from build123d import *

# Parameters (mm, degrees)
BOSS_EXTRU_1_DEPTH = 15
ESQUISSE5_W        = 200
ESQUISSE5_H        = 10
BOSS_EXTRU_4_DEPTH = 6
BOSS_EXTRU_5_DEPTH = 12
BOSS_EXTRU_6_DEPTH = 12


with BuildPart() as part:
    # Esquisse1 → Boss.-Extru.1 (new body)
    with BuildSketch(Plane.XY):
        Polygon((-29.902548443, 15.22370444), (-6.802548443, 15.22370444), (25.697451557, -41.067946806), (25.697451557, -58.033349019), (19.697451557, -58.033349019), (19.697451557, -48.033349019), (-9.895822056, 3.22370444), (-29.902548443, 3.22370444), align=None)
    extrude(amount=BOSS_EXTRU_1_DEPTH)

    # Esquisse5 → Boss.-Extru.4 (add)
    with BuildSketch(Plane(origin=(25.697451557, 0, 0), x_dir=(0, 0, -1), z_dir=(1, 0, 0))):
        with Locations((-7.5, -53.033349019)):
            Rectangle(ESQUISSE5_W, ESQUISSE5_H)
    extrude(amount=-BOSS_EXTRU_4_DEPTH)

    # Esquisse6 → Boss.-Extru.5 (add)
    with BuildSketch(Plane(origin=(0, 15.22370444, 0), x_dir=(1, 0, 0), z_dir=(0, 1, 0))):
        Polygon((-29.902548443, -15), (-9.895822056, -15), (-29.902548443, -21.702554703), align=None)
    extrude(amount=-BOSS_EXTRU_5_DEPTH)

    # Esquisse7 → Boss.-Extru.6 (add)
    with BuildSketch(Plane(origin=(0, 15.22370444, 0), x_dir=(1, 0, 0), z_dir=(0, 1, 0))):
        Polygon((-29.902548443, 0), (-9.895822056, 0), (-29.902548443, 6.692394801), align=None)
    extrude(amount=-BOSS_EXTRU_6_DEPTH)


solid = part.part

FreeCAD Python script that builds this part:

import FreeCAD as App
import Part
import Sketcher
from FreeCAD import Vector
Q = App.Units.Quantity

doc = App.newDocument("Part")
params = doc.addObject("Spreadsheet::Sheet", "Params")
for row, (alias, value) in enumerate([
    ("sketch1_width", "6 mm"),
    ("sketch1_height", "12 mm"),
    ("sketch1_height2", "10 mm"),
    ("sketch1_length", "65 mm"),
    ("sketch1_width2", "23.1 mm"),
    ("pad1_length", "15 mm"),
    ("sketch2_width", "10 mm"),
    ("sketch2_height", "200 mm"),
    ("pad2_length", "6 mm"),
    ("pad3_length", "12 mm"),
    ("pad4_length", "12 mm"),
], start=1):
    params.set(f"A{row}", alias)
    params.set(f"B{row}", "=" + value)
    params.setAlias(f"B{row}", alias)

body = doc.addObject("PartDesign::Body", "Body")

sketch1 = doc.addObject("Sketcher::SketchObject", "Sketch")
body.addObject(sketch1)
sketch1.AttachmentSupport = (doc.XY_Plane, [""])
sketch1.MapMode = "FlatFace"
sketch1.addGeometry(Part.LineSegment(Vector(-6.802548, 15.223704, 0), Vector(-29.902548, 15.223704, 0)), False)
sketch1.addGeometry(Part.LineSegment(Vector(-29.902548, 15.223704, 0), Vector(-29.902548, 3.223704, 0)), False)
sketch1.addGeometry(Part.LineSegment(Vector(-29.902548, 3.223704, 0), Vector(-9.895822, 3.223704, 0)), False)
sketch1.addGeometry(Part.LineSegment(Vector(-9.895822, 3.223704, 0), Vector(19.697452, -48.033349, 0)), False)
sketch1.addGeometry(Part.LineSegment(Vector(19.697452, -48.033349, 0), Vector(19.697452, -58.033349, 0)), False)
sketch1.addGeometry(Part.LineSegment(Vector(19.697452, -58.033349, 0), Vector(25.697452, -58.033349, 0)), False)
sketch1.addGeometry(Part.LineSegment(Vector(25.697452, -58.033349, 0), Vector(25.697452, -41.067947, 0)), False)
sketch1.addGeometry(Part.LineSegment(Vector(25.697452, -41.067947, 0), Vector(-6.802548, 15.223704, 0)), False)
sketch1.addConstraint(Sketcher.Constraint("Coincident", 0, 2, 1, 1))
sketch1.addConstraint(Sketcher.Constraint("Coincident", 1, 2, 2, 1))
sketch1.addConstraint(Sketcher.Constraint("Coincident", 2, 2, 3, 1))
sketch1.addConstraint(Sketcher.Constraint("Coincident", 3, 2, 4, 1))
sketch1.addConstraint(Sketcher.Constraint("Coincident", 4, 2, 5, 1))
sketch1.addConstraint(Sketcher.Constraint("Coincident", 5, 2, 6, 1))
sketch1.addConstraint(Sketcher.Constraint("Coincident", 6, 2, 7, 1))
sketch1.addConstraint(Sketcher.Constraint("Coincident", 7, 2, 0, 1))
sketch1.addConstraint(Sketcher.Constraint("Horizontal", 0))
sketch1.addConstraint(Sketcher.Constraint("Vertical", 1))
sketch1.addConstraint(Sketcher.Constraint("Horizontal", 2))
sketch1.addConstraint(Sketcher.Constraint("Vertical", 4))
sketch1.addConstraint(Sketcher.Constraint("Horizontal", 5))
sketch1.addConstraint(Sketcher.Constraint("Vertical", 6))
sketch1.addConstraint(Sketcher.Constraint("Parallel", 3, 7))
sketch1.addConstraint(Sketcher.Constraint("DistanceX", 5, 1, 5, 2, 6.0))
sketch1.addConstraint(Sketcher.Constraint("DistanceY", 1, 2, 1, 1, 12.0))
sketch1.addConstraint(Sketcher.Constraint("DistanceY", 4, 2, 4, 1, 10.0))
sketch1.addConstraint(Sketcher.Constraint("Angle", 3, Q("-60 deg")))
sketch1.addConstraint(Sketcher.Constraint("Distance", 7, 65.0))
sketch1.addConstraint(Sketcher.Constraint("DistanceX", 0, 2, 0, 1, 23.1))
sketch1.addConstraint(Sketcher.Constraint("DistanceX", 2, 1, 2, 2, 20.006726))
sketch1.addConstraint(Sketcher.Constraint("DistanceX", 0, 2, -1, 1, 29.902548))
sketch1.addConstraint(Sketcher.Constraint("DistanceY", 3, 2, -1, 1, 48.033349))
sketch1.setExpression("Constraints[15]", "Params.sketch1_width")
sketch1.setExpression("Constraints[16]", "Params.sketch1_height")
sketch1.setExpression("Constraints[17]", "Params.sketch1_height2")
sketch1.setExpression("Constraints[19]", "Params.sketch1_length")
sketch1.setExpression("Constraints[20]", "Params.sketch1_width2")
pad1 = doc.addObject("PartDesign::Pad", "Pad")
body.addObject(pad1)
pad1.Profile = sketch1
pad1.setExpression("Length", "Params.pad1_length")

sketch2 = doc.addObject("Sketcher::SketchObject", "Sketch001")
body.addObject(sketch2)
sketch2.AttachmentSupport = (doc.YZ_Plane, [""])
sketch2.MapMode = "FlatFace"
sketch2.AttachmentOffset = App.Placement(Vector(0, 0, 25.697452), App.Rotation())
sketch2.addGeometry(Part.LineSegment(Vector(-48.033349, 107.5, 0), Vector(-58.033349, 107.5, 0)), False)
sketch2.addGeometry(Part.LineSegment(Vector(-58.033349, 107.5, 0), Vector(-58.033349, -92.5, 0)), False)
sketch2.addGeometry(Part.LineSegment(Vector(-58.033349, -92.5, 0), Vector(-48.033349, -92.5, 0)), False)
sketch2.addGeometry(Part.LineSegment(Vector(-48.033349, -92.5, 0), Vector(-48.033349, 107.5, 0)), False)
sketch2.addConstraint(Sketcher.Constraint("Coincident", 0, 2, 1, 1))
sketch2.addConstraint(Sketcher.Constraint("Coincident", 1, 2, 2, 1))
sketch2.addConstraint(Sketcher.Constraint("Coincident", 2, 2, 3, 1))
sketch2.addConstraint(Sketcher.Constraint("Coincident", 3, 2, 0, 1))
sketch2.addConstraint(Sketcher.Constraint("Horizontal", 0))
sketch2.addConstraint(Sketcher.Constraint("Vertical", 1))
sketch2.addConstraint(Sketcher.Constraint("Horizontal", 2))
sketch2.addConstraint(Sketcher.Constraint("Vertical", 3))
sketch2.addConstraint(Sketcher.Constraint("DistanceX", 0, 2, 0, 1, 10.0))
sketch2.addConstraint(Sketcher.Constraint("DistanceY", 1, 2, 1, 1, 200.0))
sketch2.addConstraint(Sketcher.Constraint("DistanceY", -1, 1, 0, 2, 107.5))
sketch2.addConstraint(Sketcher.Constraint("DistanceX", 0, 2, -1, 1, 58.033349))
sketch2.setExpression("Constraints[8]", "Params.sketch2_width")
sketch2.setExpression("Constraints[9]", "Params.sketch2_height")
pad2 = doc.addObject("PartDesign::Pad", "Pad001")
body.addObject(pad2)
pad2.Profile = sketch2
pad2.setExpression("Length", "Params.pad2_length")
pad2.Reversed = True

sketch3 = doc.addObject("Sketcher::SketchObject", "Sketch002")
body.addObject(sketch3)
sketch3.AttachmentSupport = (doc.XZ_Plane, [""])
sketch3.MapMode = "FlatFace"
sketch3.AttachmentOffset = App.Placement(Vector(0, 0, -15.223704), App.Rotation())
sketch3.addGeometry(Part.LineSegment(Vector(-9.895822, 15, 0), Vector(-29.902548, 15, 0)), False)
sketch3.addGeometry(Part.LineSegment(Vector(-29.902548, 15, 0), Vector(-29.902548, 21.702555, 0)), False)
sketch3.addGeometry(Part.LineSegment(Vector(-29.902548, 21.702555, 0), Vector(-9.895822, 15, 0)), False)
sketch3.addConstraint(Sketcher.Constraint("Coincident", 0, 2, 1, 1))
sketch3.addConstraint(Sketcher.Constraint("Coincident", 1, 2, 2, 1))
sketch3.addConstraint(Sketcher.Constraint("Coincident", 2, 2, 0, 1))
sketch3.addConstraint(Sketcher.Constraint("Horizontal", 0))
sketch3.addConstraint(Sketcher.Constraint("Vertical", 1))
sketch3.addConstraint(Sketcher.Constraint("DistanceY", -1, 1, 0, 2, 15.0))
sketch3.addConstraint(Sketcher.Constraint("DistanceX", 0, 2, 0, 1, 20.006726))
sketch3.addConstraint(Sketcher.Constraint("DistanceY", 1, 1, 1, 2, 6.702555))
sketch3.addConstraint(Sketcher.Constraint("DistanceX", 0, 2, -1, 1, 29.902548))
pad3 = doc.addObject("PartDesign::Pad", "Pad002")
body.addObject(pad3)
pad3.Profile = sketch3
pad3.setExpression("Length", "Params.pad3_length")

sketch4 = doc.addObject("Sketcher::SketchObject", "Sketch003")
body.addObject(sketch4)
sketch4.AttachmentSupport = (doc.XZ_Plane, [""])
sketch4.MapMode = "FlatFace"
sketch4.AttachmentOffset = App.Placement(Vector(0, 0, -15.223704), App.Rotation())
sketch4.addGeometry(Part.LineSegment(Vector(-29.902548, 0, 0), Vector(-9.895822, 0, 0)), False)
sketch4.addGeometry(Part.LineSegment(Vector(-9.895822, 0, 0), Vector(-29.902548, -6.692395, 0)), False)
sketch4.addGeometry(Part.LineSegment(Vector(-29.902548, -6.692395, 0), Vector(-29.902548, 0, 0)), False)
sketch4.addConstraint(Sketcher.Constraint("Coincident", 0, 2, 1, 1))
sketch4.addConstraint(Sketcher.Constraint("Coincident", 1, 2, 2, 1))
sketch4.addConstraint(Sketcher.Constraint("Coincident", 2, 2, 0, 1))
sketch4.addConstraint(Sketcher.Constraint("Horizontal", 0))
sketch4.addConstraint(Sketcher.Constraint("Vertical", 2))
sketch4.addConstraint(Sketcher.Constraint("PointOnObject", 0, 2, -1))
sketch4.addConstraint(Sketcher.Constraint("Distance", 1, 21.09638))
sketch4.addConstraint(Sketcher.Constraint("DistanceX", 0, 1, 0, 2, 20.006726))
sketch4.addConstraint(Sketcher.Constraint("DistanceX", 1, 2, -1, 1, 29.902548))
pad4 = doc.addObject("PartDesign::Pad", "Pad003")
body.addObject(pad4)
pad4.Profile = sketch4
pad4.setExpression("Length", "Params.pad4_length")

doc.recompute()
